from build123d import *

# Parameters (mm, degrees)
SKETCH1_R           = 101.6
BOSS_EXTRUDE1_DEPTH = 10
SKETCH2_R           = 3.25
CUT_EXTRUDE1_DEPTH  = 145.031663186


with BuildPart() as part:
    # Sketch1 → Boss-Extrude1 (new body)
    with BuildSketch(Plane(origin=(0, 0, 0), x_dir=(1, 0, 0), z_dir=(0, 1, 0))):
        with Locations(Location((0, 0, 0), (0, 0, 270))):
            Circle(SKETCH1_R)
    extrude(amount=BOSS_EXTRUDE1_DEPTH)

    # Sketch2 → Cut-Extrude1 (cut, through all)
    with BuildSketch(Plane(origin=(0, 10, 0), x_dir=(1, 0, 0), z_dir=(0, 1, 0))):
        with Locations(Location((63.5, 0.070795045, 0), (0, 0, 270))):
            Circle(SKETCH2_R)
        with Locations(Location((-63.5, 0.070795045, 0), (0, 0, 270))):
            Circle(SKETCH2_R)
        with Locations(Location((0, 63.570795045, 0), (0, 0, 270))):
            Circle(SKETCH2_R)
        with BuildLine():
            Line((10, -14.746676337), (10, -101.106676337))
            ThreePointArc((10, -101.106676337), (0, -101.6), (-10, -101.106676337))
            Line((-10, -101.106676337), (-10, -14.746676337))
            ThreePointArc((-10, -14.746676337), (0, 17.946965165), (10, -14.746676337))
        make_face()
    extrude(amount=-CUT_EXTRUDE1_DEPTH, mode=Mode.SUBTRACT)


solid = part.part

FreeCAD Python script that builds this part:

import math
import FreeCAD as App
import Part
import Sketcher
Q = App.Units.Quantity

doc = App.newDocument("Part")
body = doc.addObject("PartDesign::Body", "Body")

# Sketch on XZ plane
sketch1 = doc.addObject("Sketcher::SketchObject", "Sketch")
body.addObject(sketch1)
sketch1.AttachmentSupport = (doc.XZ_Plane, [""])
sketch1.MapMode = "FlatFace"
sketch1.addGeometry(Part.Circle(App.Vector(0, 0, 0), App.Vector(0, 0, 1), 102), False)
sketch1.addConstraint([
    Sketcher.Constraint("Coincident", 0, 3, -1, 1),
    Sketcher.Constraint("Diameter", 0, Q("203.2 mm")),
])
pad1 = doc.addObject("PartDesign::Pad", "Pad")
body.addObject(pad1)
pad1.Profile = sketch1
pad1.Length = 10
pad1.Reversed = True

# Sketch on XZ plane
sketch2 = doc.addObject("Sketcher::SketchObject", "Sketch001")
body.addObject(sketch2)
sketch2.AttachmentSupport = (doc.XZ_Plane, [""])
sketch2.MapMode = "FlatFace"
sketch2.AttachmentOffset = App.Placement(App.Vector(0, 0, -10), App.Rotation())
sketch2.addGeometry([
    Part.Circle(App.Vector(63.5, -0.1, 0), App.Vector(0, 0, 1), 3.2),  # 0
    Part.Circle(App.Vector(-63.5, -0.1, 0), App.Vector(0, 0, 1), 3.2),  # 1
    Part.Circle(App.Vector(0, -63.6, 0), App.Vector(0, 0, 1), 3.2),  # 2
    Part.LineSegment(App.Vector(10, 101.1, 0), App.Vector(10, 14.7, 0)),  # 3
    Part.ArcOfCircle(Part.Circle(App.Vector(0, -0.1, 0), App.Vector(0, 0, 1), 17.9), math.radians(124), math.radians(416)),  # 4
    Part.LineSegment(App.Vector(-10, 14.7, 0), App.Vector(-10, 101.1, 0)),  # 5
    Part.ArcOfCircle(Part.Circle(App.Vector(0, 0, 0), App.Vector(0, 0, 1), 101.6), math.radians(84.35), math.radians(95.65)),  # 6
], False)
sketch2.addConstraint([
    Sketcher.Constraint("Coincident", 3, 2, 4, 2),
    Sketcher.Constraint("Coincident", 4, 1, 5, 1),
    Sketcher.Constraint("Coincident", 5, 2, 6, 2),
    Sketcher.Constraint("Coincident", 6, 1, 3, 1),
    Sketcher.Constraint("Vertical", 3),
    Sketcher.Constraint("Vertical", 5),
    Sketcher.Constraint("Coincident", 6, 3, -1, 1),
    Sketcher.Constraint("Equal", 0, 1),
    Sketcher.Constraint("Equal", 1, 2),
    Sketcher.Constraint("Symmetric", 0, 3, 1, 3, -2),
    Sketcher.Constraint("Symmetric", 3, 2, 4, 1, -2),
    Sketcher.Constraint("PointOnObject", 2, 3, -2),
    Sketcher.Constraint("Horizontal", 1, 3, 4, 3),
    Sketcher.Constraint("Diameter", 0, Q("6.5 mm")),
    Sketcher.Constraint("Radius", 6, Q("101.6 mm")),
    Sketcher.Constraint("DistanceX", -1, 1, 3, 2, Q("10 mm")),
    Sketcher.Constraint("DistanceX", 1, 3, 0, 3, Q("127 mm")),
    Sketcher.Constraint("DistanceY", 3, 2, 3, 1, Q("86.36 mm")),
    Sketcher.Constraint("DistanceY", 2, 3, 0, 3, Q("63.5 mm")),
    Sketcher.Constraint("Radius", 4, Q("17.87617 mm")),
])
pocket1 = doc.addObject("PartDesign::Pocket", "Pocket")
body.addObject(pocket1)
pocket1.Profile = sketch2
pocket1.Type = "ThroughAll"
pocket1.Reversed = True

doc.recompute()
